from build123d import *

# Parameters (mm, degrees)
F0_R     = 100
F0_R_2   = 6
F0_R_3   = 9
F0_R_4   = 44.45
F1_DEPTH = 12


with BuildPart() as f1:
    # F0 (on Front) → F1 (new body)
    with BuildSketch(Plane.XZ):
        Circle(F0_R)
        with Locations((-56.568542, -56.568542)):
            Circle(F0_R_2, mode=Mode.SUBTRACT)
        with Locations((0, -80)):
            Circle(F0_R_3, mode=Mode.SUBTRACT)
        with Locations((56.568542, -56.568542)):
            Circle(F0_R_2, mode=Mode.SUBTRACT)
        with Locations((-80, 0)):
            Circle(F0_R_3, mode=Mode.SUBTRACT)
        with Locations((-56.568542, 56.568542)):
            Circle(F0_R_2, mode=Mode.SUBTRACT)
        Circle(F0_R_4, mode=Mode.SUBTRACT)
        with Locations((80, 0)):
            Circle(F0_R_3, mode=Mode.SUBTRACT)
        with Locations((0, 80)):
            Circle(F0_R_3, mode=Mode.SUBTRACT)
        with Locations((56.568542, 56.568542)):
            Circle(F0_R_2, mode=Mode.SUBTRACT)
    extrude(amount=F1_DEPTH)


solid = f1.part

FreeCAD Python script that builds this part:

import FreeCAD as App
import Part
import Sketcher
from FreeCAD import Vector

doc = App.newDocument("Part")
params = doc.addObject("Spreadsheet::Sheet", "Params")
for row, (alias, value) in enumerate([
    ("sketch1_diameter", "200 mm"),
    ("sketch1_diameter2", "12 mm"),
    ("sketch1_diameter3", "18 mm"),
    ("sketch1_diameter4", "88.9 mm"),
    ("pad1_length", "12 mm"),
], start=1):
    params.set(f"A{row}", alias)
    params.set(f"B{row}", "=" + value)
    params.setAlias(f"B{row}", alias)

body = doc.addObject("PartDesign::Body", "Body")

sketch1 = body.newObject("Sketcher::SketchObject", "Sketch")
sketch1.AttachmentSupport = (doc.getObject("XZ_Plane"), [""])
sketch1.MapMode = "FlatFace"
sketch1.addGeometry([
    Part.Circle(Vector(0, 0, 0), Vector(0, 0, 1), 100),
    Part.Circle(Vector(-57, -57, 0), Vector(0, 0, 1), 6),
    Part.Circle(Vector(0, -80, 0), Vector(0, 0, 1), 9),
    Part.Circle(Vector(57, -57, 0), Vector(0, 0, 1), 6),
    Part.Circle(Vector(-80, 0, 0), Vector(0, 0, 1), 9),
    Part.Circle(Vector(-57, 57, 0), Vector(0, 0, 1), 6),
    Part.Circle(Vector(0, 0, 0), Vector(0, 0, 1), 44),
    Part.Circle(Vector(80, 0, 0), Vector(0, 0, 1), 9),
    Part.Circle(Vector(0, 80, 0), Vector(0, 0, 1), 9),
    Part.Circle(Vector(57, 57, 0), Vector(0, 0, 1), 6),
], False)
sketch1.addConstraint([
    Sketcher.Constraint("Coincident", 0, 3, -1, 1),
    Sketcher.Constraint("Coincident", 6, 3, -1, 1),
    Sketcher.Constraint("Equal", 1, 3),
    Sketcher.Constraint("Equal", 2, 4),
    Sketcher.Constraint("Equal", 3, 5),
    Sketcher.Constraint("Equal", 4, 7),
    Sketcher.Constraint("Equal", 7, 8),
    Sketcher.Constraint("Equal", 5, 9),
    Sketcher.Constraint("Symmetric", 3, 3, 5, 3, -1, 1),
    Sketcher.Constraint("Symmetric", 4, 3, 7, 3, -1, 1),
    Sketcher.Constraint("Symmetric", 2, 3, 8, 3, -1, 1),
    Sketcher.Constraint("Symmetric", 1, 3, 9, 3, -1, 1),
    Sketcher.Constraint("Symmetric", 1, 3, 3, 3, -2),
    Sketcher.Constraint("PointOnObject", 2, 3, -2),
    Sketcher.Constraint("PointOnObject", 4, 3, -1),
    Sketcher.Constraint("Diameter", 0, 200.0),
    Sketcher.Constraint("Diameter", 1, 12.0),
    Sketcher.Constraint("Diameter", 2, 18.0),
    Sketcher.Constraint("Diameter", 6, 88.9),
    Sketcher.Constraint("DistanceY", 2, 3, -1, 1, 80.0),
    Sketcher.Constraint("DistanceX", 4, 3, -1, 1, 80.0),
    Sketcher.Constraint("DistanceX", 4, 3, 3, 3, 136.568542),
    Sketcher.Constraint("DistanceY", 2, 3, 5, 3, 136.568542),
])
sketch1.setExpression("Constraints[15]", "Params.sketch1_diameter")
sketch1.setExpression("Constraints[16]", "Params.sketch1_diameter2")
sketch1.setExpression("Constraints[17]", "Params.sketch1_diameter3")
sketch1.setExpression("Constraints[18]", "Params.sketch1_diameter4")
pad1 = body.newObject("PartDesign::Pad", "Pad")
pad1.Profile = sketch1
pad1.setExpression("Length", "Params.pad1_length")

doc.recompute()
